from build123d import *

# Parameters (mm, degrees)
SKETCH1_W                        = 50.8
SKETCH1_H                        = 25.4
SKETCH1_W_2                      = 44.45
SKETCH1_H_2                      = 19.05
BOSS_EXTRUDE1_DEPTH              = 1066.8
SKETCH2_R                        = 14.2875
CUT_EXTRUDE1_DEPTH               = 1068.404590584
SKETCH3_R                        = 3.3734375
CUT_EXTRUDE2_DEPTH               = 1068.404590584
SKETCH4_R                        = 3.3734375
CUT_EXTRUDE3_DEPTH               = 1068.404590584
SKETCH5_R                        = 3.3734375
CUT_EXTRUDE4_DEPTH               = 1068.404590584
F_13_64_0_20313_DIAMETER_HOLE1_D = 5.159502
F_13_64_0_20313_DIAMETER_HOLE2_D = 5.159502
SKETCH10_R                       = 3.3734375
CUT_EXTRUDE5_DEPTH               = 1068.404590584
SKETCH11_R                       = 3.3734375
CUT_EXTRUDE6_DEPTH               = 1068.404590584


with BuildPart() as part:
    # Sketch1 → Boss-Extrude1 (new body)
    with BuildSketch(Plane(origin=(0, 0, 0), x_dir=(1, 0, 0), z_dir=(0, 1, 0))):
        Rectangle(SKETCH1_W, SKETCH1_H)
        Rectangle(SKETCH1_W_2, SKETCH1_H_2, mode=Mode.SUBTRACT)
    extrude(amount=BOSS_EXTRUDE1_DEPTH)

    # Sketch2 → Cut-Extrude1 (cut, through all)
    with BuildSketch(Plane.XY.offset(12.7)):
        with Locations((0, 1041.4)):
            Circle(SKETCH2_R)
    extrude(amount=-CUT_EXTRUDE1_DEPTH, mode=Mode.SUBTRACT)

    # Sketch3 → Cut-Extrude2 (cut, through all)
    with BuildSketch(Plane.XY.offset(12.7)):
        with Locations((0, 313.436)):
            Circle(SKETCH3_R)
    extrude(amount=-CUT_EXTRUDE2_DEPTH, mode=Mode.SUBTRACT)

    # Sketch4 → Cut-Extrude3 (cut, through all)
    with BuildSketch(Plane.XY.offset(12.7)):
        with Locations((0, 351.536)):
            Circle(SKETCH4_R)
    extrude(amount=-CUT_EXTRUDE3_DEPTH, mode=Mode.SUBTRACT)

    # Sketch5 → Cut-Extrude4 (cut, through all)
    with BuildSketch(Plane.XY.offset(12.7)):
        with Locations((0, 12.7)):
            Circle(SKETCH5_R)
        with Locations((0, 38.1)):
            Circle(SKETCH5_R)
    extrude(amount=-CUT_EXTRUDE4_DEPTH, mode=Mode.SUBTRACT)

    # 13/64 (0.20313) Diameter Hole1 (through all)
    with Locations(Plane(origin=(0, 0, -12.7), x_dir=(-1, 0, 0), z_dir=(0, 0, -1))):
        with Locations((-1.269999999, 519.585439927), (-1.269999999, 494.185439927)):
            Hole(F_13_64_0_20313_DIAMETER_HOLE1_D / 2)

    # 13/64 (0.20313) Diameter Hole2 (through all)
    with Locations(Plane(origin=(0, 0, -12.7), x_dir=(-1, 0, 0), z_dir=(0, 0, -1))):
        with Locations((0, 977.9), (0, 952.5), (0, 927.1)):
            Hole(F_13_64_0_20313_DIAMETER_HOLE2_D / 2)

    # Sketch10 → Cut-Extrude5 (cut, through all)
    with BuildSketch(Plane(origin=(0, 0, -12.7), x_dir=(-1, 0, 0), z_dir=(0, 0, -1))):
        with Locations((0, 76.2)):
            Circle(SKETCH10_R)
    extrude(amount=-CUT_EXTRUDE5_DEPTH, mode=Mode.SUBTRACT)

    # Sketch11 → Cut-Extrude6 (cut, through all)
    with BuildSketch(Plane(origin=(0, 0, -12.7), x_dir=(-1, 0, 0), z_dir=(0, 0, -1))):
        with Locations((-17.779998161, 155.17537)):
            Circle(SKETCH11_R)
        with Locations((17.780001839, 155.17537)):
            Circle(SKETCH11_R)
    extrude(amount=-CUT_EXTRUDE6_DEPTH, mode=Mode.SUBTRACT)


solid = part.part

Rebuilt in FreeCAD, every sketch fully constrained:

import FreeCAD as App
import Part
import Sketcher

V = App.Vector
Q = App.Units.Quantity


def add_polygon(sketch, points):
    """Adds a closed chain of lines whose ends are joined by coincident constraints."""
    first, n = sketch.GeometryCount, len(points)
    for a, b in zip(points, points[1:] + points[:1]):
        sketch.addGeometry(Part.LineSegment(App.Vector(*a, 0), App.Vector(*b, 0)), False)
    for i in range(n):
        sketch.addConstraint(Sketcher.Constraint("Coincident", first + i, 2, first + (i + 1) % n, 1))

doc = App.newDocument("Part")
body = doc.addObject("PartDesign::Body", "Body")

# Sketch on XZ plane
sketch1 = body.newObject("Sketcher::SketchObject", "Sketch")
sketch1.AttachmentSupport = (doc.getObject("XZ_Plane"), [""])
sketch1.MapMode = "FlatFace"
add_polygon(sketch1, [(-25, -13), (-25, 13), (25, 13), (25, -13)])  # lines 0-3
add_polygon(sketch1, [(22, 10), (-22, 10), (-22, -10), (22, -10)])  # lines 4-7
sketch1.addConstraint(Sketcher.Constraint("Vertical", 0))
sketch1.addConstraint(Sketcher.Constraint("Horizontal", 1))
sketch1.addConstraint(Sketcher.Constraint("Vertical", 2))
sketch1.addConstraint(Sketcher.Constraint("Horizontal", 3))
sketch1.addConstraint(Sketcher.Constraint("Horizontal", 4))
sketch1.addConstraint(Sketcher.Constraint("Vertical", 5))
sketch1.addConstraint(Sketcher.Constraint("Horizontal", 6))
sketch1.addConstraint(Sketcher.Constraint("Vertical", 7))
sketch1.addConstraint(Sketcher.Constraint("Symmetric", 0, 2, 2, 2, -1, 1))
sketch1.addConstraint(Sketcher.Constraint("Symmetric", 4, 2, 6, 2, -1, 1))
sketch1.addConstraint(Sketcher.Constraint("DistanceX", 1, 1, 1, 2, Q("2 in")))
sketch1.addConstraint(Sketcher.Constraint("DistanceY", 0, 1, 0, 2, Q("1 in")))
sketch1.addConstraint(Sketcher.Constraint("DistanceX", 4, 2, 4, 1, Q("1.75 in")))
sketch1.addConstraint(Sketcher.Constraint("DistanceY", 5, 2, 5, 1, Q("0.75 in")))
pad1 = body.newObject("PartDesign::Pad", "Pad")
pad1.Profile = sketch1
pad1.Length = Q("42 in")
pad1.Reversed = True

# Sketch on XY plane
sketch2 = body.newObject("Sketcher::SketchObject", "Sketch001")
sketch2.AttachmentSupport = (doc.getObject("XY_Plane"), [""])
sketch2.MapMode = "FlatFace"
sketch2.AttachmentOffset = App.Placement(V(0, 0, 0.5 * 25.4), App.Rotation())
sketch2.addGeometry(Part.Circle(V(0, 1041, 0), V(0, 0, 1), 14), False)
sketch2.addConstraint(Sketcher.Constraint("PointOnObject", 0, 3, -2))
sketch2.addConstraint(Sketcher.Constraint("Diameter", 0, Q("1.125 in")))
sketch2.addConstraint(Sketcher.Constraint("DistanceY", -1, 1, 0, 3, Q("41 in")))
pocket1 = body.newObject("PartDesign::Pocket", "Pocket")
pocket1.Profile = sketch2
pocket1.Type = "ThroughAll"

# Sketch on XY plane
sketch3 = body.newObject("Sketcher::SketchObject", "Sketch002")
sketch3.AttachmentSupport = (doc.getObject("XY_Plane"), [""])
sketch3.MapMode = "FlatFace"
sketch3.AttachmentOffset = App.Placement(V(0, 0, 0.5 * 25.4), App.Rotation())
sketch3.addGeometry(Part.Circle(V(0, 313.4, 0), V(0, 0, 1), 3.4), False)
sketch3.addConstraint(Sketcher.Constraint("PointOnObject", 0, 3, -2))
sketch3.addConstraint(Sketcher.Constraint("Diameter", 0, Q("0.265625 in")))
sketch3.addConstraint(Sketcher.Constraint("DistanceY", -1, 1, 0, 3, Q("12.34 in")))
pocket2 = body.newObject("PartDesign::Pocket", "Pocket001")
pocket2.Profile = sketch3
pocket2.Type = "ThroughAll"

# Sketch on XY plane
sketch4 = body.newObject("Sketcher::SketchObject", "Sketch003")
sketch4.AttachmentSupport = (doc.getObject("XY_Plane"), [""])
sketch4.MapMode = "FlatFace"
sketch4.AttachmentOffset = App.Placement(V(0, 0, 0.5 * 25.4), App.Rotation())
sketch4.addGeometry(Part.Circle(V(0, 351.5, 0), V(0, 0, 1), 3.4), False)
sketch4.addConstraint(Sketcher.Constraint("PointOnObject", 0, 3, -2))
sketch4.addConstraint(Sketcher.Constraint("Diameter", 0, Q("0.265625 in")))
sketch4.addConstraint(Sketcher.Constraint("DistanceY", -1, 1, 0, 3, Q("13.84 in")))
pocket3 = body.newObject("PartDesign::Pocket", "Pocket002")
pocket3.Profile = sketch4
pocket3.Type = "ThroughAll"

# Sketch on XY plane
sketch5 = body.newObject("Sketcher::SketchObject", "Sketch004")
sketch5.AttachmentSupport = (doc.getObject("XY_Plane"), [""])
sketch5.MapMode = "FlatFace"
sketch5.AttachmentOffset = App.Placement(V(0, 0, 0.5 * 25.4), App.Rotation())
sketch5.addGeometry(Part.Circle(V(0, 12.7, 0), V(0, 0, 1), 3.4), False)
sketch5.addGeometry(Part.Circle(V(0, 38.1, 0), V(0, 0, 1), 3.4), False)
sketch5.addConstraint(Sketcher.Constraint("Equal", 0, 1))
sketch5.addConstraint(Sketcher.Constraint("PointOnObject", 0, 3, -2))
sketch5.addConstraint(Sketcher.Constraint("PointOnObject", 1, 3, -2))
sketch5.addConstraint(Sketcher.Constraint("Diameter", 0, Q("0.265625 in")))
sketch5.addConstraint(Sketcher.Constraint("DistanceY", 0, 3, 1, 3, Q("1 in")))
sketch5.addConstraint(Sketcher.Constraint("DistanceY", -1, 1, 0, 3, Q("0.5 in")))
pocket4 = body.newObject("PartDesign::Pocket", "Pocket003")
pocket4.Profile = sketch5
pocket4.Type = "ThroughAll"

# Sketch on XY plane
sketch6 = body.newObject("Sketcher::SketchObject", "Sketch005")
sketch6.AttachmentSupport = (doc.getObject("XY_Plane"), [""])
sketch6.MapMode = "FlatFace"
sketch6.AttachmentOffset = App.Placement(V(0, 0, -0.5 * 25.4), App.Rotation())
sketch6.addGeometry(Part.Circle(V(1.3, 519.6, 0), V(0, 0, 1), 2.6), False)
sketch6.addGeometry(Part.Circle(V(1.3, 494.2, 0), V(0, 0, 1), 2.6), False)
sketch6.addConstraint(Sketcher.Constraint("Equal", 0, 1))
sketch6.addConstraint(Sketcher.Constraint("Vertical", 0, 3, 1, 3))
sketch6.addConstraint(Sketcher.Constraint("DistanceY", 1, 3, 0, 3, Q("1 in")))
sketch6.addConstraint(Sketcher.Constraint("Diameter", 0, Q("5.159502 mm")))
sketch6.addConstraint(Sketcher.Constraint("DistanceX", -1, 1, 0, 3, Q("0.05 in")))
sketch6.addConstraint(Sketcher.Constraint("DistanceY", -1, 1, 0, 3, Q("519.58544 mm")))
doc.recompute()
hole = body.newObject("PartDesign::Hole", "Hole")
hole.Profile = sketch6
hole.ThreadType = "None"
hole.Diameter = 5.159502
hole.DepthType = "ThroughAll"
hole.Reversed = True

# Sketch on XY plane
sketch7 = body.newObject("Sketcher::SketchObject", "Sketch006")
sketch7.AttachmentSupport = (doc.getObject("XY_Plane"), [""])
sketch7.MapMode = "FlatFace"
sketch7.AttachmentOffset = App.Placement(V(0, 0, -0.5 * 25.4), App.Rotation())
sketch7.addGeometry(Part.Circle(V(0, 977.9, 0), V(0, 0, 1), 2.6), False)
sketch7.addGeometry(Part.Circle(V(0, 952.5, 0), V(0, 0, 1), 2.6), False)
sketch7.addGeometry(Part.Circle(V(0, 927.1, 0), V(0, 0, 1), 2.6), False)
sketch7.addConstraint(Sketcher.Constraint("Equal", 0, 1))
sketch7.addConstraint(Sketcher.Constraint("Equal", 1, 2))
sketch7.addConstraint(Sketcher.Constraint("PointOnObject", 0, 3, -2))
sketch7.addConstraint(Sketcher.Constraint("PointOnObject", 1, 3, -2))
sketch7.addConstraint(Sketcher.Constraint("PointOnObject", 2, 3, -2))
sketch7.addConstraint(Sketcher.Constraint("DistanceY", 1, 3, 0, 3, Q("1 in")))
sketch7.addConstraint(Sketcher.Constraint("DistanceY", 2, 3, 1, 3, Q("1 in")))
sketch7.addConstraint(Sketcher.Constraint("DistanceY", -1, 1, 0, 3, Q("38.5 in")))
sketch7.addConstraint(Sketcher.Constraint("Diameter", 0, Q("5.159502 mm")))
doc.recompute()
hole2 = body.newObject("PartDesign::Hole", "Hole001")
hole2.Profile = sketch7
hole2.ThreadType = "None"
hole2.Diameter = 5.159502
hole2.DepthType = "ThroughAll"
hole2.Reversed = True

# Sketch on XY plane
sketch8 = body.newObject("Sketcher::SketchObject", "Sketch007")
sketch8.AttachmentSupport = (doc.getObject("XY_Plane"), [""])
sketch8.MapMode = "FlatFace"
sketch8.AttachmentOffset = App.Placement(V(0, 0, -0.5 * 25.4), App.Rotation())
sketch8.addGeometry(Part.Circle(V(0, 76.2, 0), V(0, 0, 1), 3.4), False)
sketch8.addConstraint(Sketcher.Constraint("PointOnObject", 0, 3, -2))
sketch8.addConstraint(Sketcher.Constraint("Diameter", 0, Q("0.265625 in")))
sketch8.addConstraint(Sketcher.Constraint("DistanceY", -1, 1, 0, 3, Q("3 in")))
pocket5 = body.newObject("PartDesign::Pocket", "Pocket004")
pocket5.Profile = sketch8
pocket5.Type = "ThroughAll"
pocket5.Reversed = True

# Sketch on XY plane
sketch9 = body.newObject("Sketcher::SketchObject", "Sketch008")
sketch9.AttachmentSupport = (doc.getObject("XY_Plane"), [""])
sketch9.MapMode = "FlatFace"
sketch9.AttachmentOffset = App.Placement(V(0, 0, -0.5 * 25.4), App.Rotation())
sketch9.addGeometry(Part.Circle(V(17.8, 155.2, 0), V(0, 0, 1), 3.4), False)
sketch9.addGeometry(Part.Circle(V(-17.8, 155.2, 0), V(0, 0, 1), 3.4), False)
sketch9.addConstraint(Sketcher.Constraint("Equal", 0, 1))
sketch9.addConstraint(Sketcher.Constraint("Symmetric", 0, 3, 1, 3, -2))
sketch9.addConstraint(Sketcher.Constraint("Diameter", 0, Q("0.265625 in")))
sketch9.addConstraint(Sketcher.Constraint("DistanceX", -1, 1, 0, 3, Q("0.6999999 in")))
sketch9.addConstraint(Sketcher.Constraint("DistanceY", -1, 1, 0, 3, Q("155.17537 mm")))
pocket6 = body.newObject("PartDesign::Pocket", "Pocket005")
pocket6.Profile = sketch9
pocket6.Type = "ThroughAll"
pocket6.Reversed = True

doc.recompute()
